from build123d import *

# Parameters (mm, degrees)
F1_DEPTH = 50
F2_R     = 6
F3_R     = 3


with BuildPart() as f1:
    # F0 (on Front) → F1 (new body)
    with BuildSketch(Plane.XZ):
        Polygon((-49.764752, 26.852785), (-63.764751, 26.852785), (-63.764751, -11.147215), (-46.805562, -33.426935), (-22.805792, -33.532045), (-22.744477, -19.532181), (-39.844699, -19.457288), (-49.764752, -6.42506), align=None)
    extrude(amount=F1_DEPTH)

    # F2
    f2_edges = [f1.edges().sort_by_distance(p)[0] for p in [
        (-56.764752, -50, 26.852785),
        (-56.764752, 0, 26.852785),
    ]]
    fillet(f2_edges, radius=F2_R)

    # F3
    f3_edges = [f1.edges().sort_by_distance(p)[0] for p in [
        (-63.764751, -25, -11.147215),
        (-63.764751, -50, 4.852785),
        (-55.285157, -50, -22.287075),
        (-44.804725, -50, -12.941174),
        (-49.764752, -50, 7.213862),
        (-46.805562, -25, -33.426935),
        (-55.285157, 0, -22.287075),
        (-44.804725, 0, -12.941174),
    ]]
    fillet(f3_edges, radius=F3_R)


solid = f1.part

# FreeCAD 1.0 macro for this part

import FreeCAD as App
import Part
import Sketcher
from FreeCAD import Vector
Q = App.Units.Quantity


def edges_at(feature, points):
    """Names of the edges that pass closest to the given points."""
    edges = feature.Shape.Edges
    near = lambda p: min(range(len(edges)), key=lambda i: edges[i].distToShape(Part.Vertex(*p))[0])
    return sorted({f"Edge{near(p) + 1}" for p in points})


def add_polygon(sketch, points):
    """Adds a closed chain of lines whose ends are joined by coincident constraints."""
    first, n = sketch.GeometryCount, len(points)
    for a, b in zip(points, points[1:] + points[:1]):
        sketch.addGeometry(Part.LineSegment(App.Vector(*a, 0), App.Vector(*b, 0)), False)
    for i in range(n):
        sketch.addConstraint(Sketcher.Constraint("Coincident", first + i, 2, first + (i + 1) % n, 1))

doc = App.newDocument("Part")
params = doc.addObject("Spreadsheet::Sheet", "Params")
for row, (alias, value) in enumerate([
    ("sketch1_width", "13.999999 mm"),
    ("sketch1_height", "38 mm"),
    ("sketch1_length", "28 mm"),
    ("sketch1_length2", "24 mm"),
    ("sketch1_length3", "13.999998 mm"),
    ("pad1_length", "50 mm"),
    ("fillet_radius", "6 mm"),
    ("fillet2_radius", "3 mm"),
], start=1):
    params.set(f"A{row}", alias)
    params.set(f"B{row}", "=" + value)
    params.setAlias(f"B{row}", alias)

body = doc.addObject("PartDesign::Body", "Body")

# Sketch on XZ plane
sketch1 = doc.addObject("Sketcher::SketchObject", "Sketch")
body.addObject(sketch1)
sketch1.AttachmentSupport = (doc.XZ_Plane, [""])
sketch1.MapMode = "FlatFace"
add_polygon(sketch1, [(-50, 27), (-64, 27), (-64, -11), (-47, -33), (-23, -34), (-23, -20), (-40, -19), (-50, -6)])  # lines 0-7
sketch1.addConstraint(Sketcher.Constraint("Horizontal", 0))
sketch1.addConstraint(Sketcher.Constraint("Vertical", 1))
sketch1.addConstraint(Sketcher.Constraint("Vertical", 7))
sketch1.addConstraint(Sketcher.Constraint("Perpendicular", 3, 4))
sketch1.addConstraint(Sketcher.Constraint("Perpendicular", 4, 5))
sketch1.addConstraint(Sketcher.Constraint("Parallel", 2, 6))
sketch1.addConstraint(Sketcher.Constraint("DistanceX", 0, 2, 0, 1, Q("13.999999 mm")))
sketch1.addConstraint(Sketcher.Constraint("DistanceY", 1, 2, 1, 1, Q("38 mm")))
sketch1.addConstraint(Sketcher.Constraint("Distance", 2, Q("28 mm")))
sketch1.addConstraint(Sketcher.Constraint("Distance", 3, Q("24 mm")))
sketch1.addConstraint(Sketcher.Constraint("Distance", 4, Q("13.999998 mm")))
sketch1.addConstraint(Sketcher.Constraint("DistanceX", 5, 2, -1, 1, Q("39.844699 mm")))
sketch1.addConstraint(Sketcher.Constraint("Distance", 6, Q("16.37823 mm")))
sketch1.addConstraint(Sketcher.Constraint("DistanceY", 7, 1, 7, 2, Q("33.277845 mm")))
sketch1.addConstraint(Sketcher.Constraint("DistanceX", 0, 2, -1, 1, Q("63.764751 mm")))
sketch1.addConstraint(Sketcher.Constraint("DistanceY", 4, 2, -1, 1, Q("19.532181 mm")))
sketch1.setExpression("Constraints[14]", "Params.sketch1_width")
sketch1.setExpression("Constraints[15]", "Params.sketch1_height")
sketch1.setExpression("Constraints[16]", "Params.sketch1_length")
sketch1.setExpression("Constraints[17]", "Params.sketch1_length2")
sketch1.setExpression("Constraints[18]", "Params.sketch1_length3")
pad1 = doc.addObject("PartDesign::Pad", "Pad")
body.addObject(pad1)
pad1.Profile = sketch1
pad1.setExpression("Length", "Params.pad1_length")
doc.recompute()

fillet = doc.addObject("PartDesign::Fillet", "Fillet")
body.addObject(fillet)
fillet.Base = (pad1, edges_at(pad1, [(-56.765, -50, 26.853), (-56.765, 0, 26.853)]))
fillet.setExpression("Radius", "Params.fillet_radius")
doc.recompute()

fillet2 = doc.addObject("PartDesign::Fillet", "Fillet001")
body.addObject(fillet2)
fillet2.Base = (fillet, edges_at(fillet, [
    (-63.765, -25, -11.147),
    (-63.765, -50, 4.853),
    (-55.285, -50, -22.287),
    (-44.805, -50, -12.941),
    (-49.765, -50, 7.214),
    (-46.806, -25, -33.427),
    (-55.285, 0, -22.287),
    (-44.805, 0, -12.941),
]))
fillet2.setExpression("Radius", "Params.fillet2_radius")

doc.recompute()
